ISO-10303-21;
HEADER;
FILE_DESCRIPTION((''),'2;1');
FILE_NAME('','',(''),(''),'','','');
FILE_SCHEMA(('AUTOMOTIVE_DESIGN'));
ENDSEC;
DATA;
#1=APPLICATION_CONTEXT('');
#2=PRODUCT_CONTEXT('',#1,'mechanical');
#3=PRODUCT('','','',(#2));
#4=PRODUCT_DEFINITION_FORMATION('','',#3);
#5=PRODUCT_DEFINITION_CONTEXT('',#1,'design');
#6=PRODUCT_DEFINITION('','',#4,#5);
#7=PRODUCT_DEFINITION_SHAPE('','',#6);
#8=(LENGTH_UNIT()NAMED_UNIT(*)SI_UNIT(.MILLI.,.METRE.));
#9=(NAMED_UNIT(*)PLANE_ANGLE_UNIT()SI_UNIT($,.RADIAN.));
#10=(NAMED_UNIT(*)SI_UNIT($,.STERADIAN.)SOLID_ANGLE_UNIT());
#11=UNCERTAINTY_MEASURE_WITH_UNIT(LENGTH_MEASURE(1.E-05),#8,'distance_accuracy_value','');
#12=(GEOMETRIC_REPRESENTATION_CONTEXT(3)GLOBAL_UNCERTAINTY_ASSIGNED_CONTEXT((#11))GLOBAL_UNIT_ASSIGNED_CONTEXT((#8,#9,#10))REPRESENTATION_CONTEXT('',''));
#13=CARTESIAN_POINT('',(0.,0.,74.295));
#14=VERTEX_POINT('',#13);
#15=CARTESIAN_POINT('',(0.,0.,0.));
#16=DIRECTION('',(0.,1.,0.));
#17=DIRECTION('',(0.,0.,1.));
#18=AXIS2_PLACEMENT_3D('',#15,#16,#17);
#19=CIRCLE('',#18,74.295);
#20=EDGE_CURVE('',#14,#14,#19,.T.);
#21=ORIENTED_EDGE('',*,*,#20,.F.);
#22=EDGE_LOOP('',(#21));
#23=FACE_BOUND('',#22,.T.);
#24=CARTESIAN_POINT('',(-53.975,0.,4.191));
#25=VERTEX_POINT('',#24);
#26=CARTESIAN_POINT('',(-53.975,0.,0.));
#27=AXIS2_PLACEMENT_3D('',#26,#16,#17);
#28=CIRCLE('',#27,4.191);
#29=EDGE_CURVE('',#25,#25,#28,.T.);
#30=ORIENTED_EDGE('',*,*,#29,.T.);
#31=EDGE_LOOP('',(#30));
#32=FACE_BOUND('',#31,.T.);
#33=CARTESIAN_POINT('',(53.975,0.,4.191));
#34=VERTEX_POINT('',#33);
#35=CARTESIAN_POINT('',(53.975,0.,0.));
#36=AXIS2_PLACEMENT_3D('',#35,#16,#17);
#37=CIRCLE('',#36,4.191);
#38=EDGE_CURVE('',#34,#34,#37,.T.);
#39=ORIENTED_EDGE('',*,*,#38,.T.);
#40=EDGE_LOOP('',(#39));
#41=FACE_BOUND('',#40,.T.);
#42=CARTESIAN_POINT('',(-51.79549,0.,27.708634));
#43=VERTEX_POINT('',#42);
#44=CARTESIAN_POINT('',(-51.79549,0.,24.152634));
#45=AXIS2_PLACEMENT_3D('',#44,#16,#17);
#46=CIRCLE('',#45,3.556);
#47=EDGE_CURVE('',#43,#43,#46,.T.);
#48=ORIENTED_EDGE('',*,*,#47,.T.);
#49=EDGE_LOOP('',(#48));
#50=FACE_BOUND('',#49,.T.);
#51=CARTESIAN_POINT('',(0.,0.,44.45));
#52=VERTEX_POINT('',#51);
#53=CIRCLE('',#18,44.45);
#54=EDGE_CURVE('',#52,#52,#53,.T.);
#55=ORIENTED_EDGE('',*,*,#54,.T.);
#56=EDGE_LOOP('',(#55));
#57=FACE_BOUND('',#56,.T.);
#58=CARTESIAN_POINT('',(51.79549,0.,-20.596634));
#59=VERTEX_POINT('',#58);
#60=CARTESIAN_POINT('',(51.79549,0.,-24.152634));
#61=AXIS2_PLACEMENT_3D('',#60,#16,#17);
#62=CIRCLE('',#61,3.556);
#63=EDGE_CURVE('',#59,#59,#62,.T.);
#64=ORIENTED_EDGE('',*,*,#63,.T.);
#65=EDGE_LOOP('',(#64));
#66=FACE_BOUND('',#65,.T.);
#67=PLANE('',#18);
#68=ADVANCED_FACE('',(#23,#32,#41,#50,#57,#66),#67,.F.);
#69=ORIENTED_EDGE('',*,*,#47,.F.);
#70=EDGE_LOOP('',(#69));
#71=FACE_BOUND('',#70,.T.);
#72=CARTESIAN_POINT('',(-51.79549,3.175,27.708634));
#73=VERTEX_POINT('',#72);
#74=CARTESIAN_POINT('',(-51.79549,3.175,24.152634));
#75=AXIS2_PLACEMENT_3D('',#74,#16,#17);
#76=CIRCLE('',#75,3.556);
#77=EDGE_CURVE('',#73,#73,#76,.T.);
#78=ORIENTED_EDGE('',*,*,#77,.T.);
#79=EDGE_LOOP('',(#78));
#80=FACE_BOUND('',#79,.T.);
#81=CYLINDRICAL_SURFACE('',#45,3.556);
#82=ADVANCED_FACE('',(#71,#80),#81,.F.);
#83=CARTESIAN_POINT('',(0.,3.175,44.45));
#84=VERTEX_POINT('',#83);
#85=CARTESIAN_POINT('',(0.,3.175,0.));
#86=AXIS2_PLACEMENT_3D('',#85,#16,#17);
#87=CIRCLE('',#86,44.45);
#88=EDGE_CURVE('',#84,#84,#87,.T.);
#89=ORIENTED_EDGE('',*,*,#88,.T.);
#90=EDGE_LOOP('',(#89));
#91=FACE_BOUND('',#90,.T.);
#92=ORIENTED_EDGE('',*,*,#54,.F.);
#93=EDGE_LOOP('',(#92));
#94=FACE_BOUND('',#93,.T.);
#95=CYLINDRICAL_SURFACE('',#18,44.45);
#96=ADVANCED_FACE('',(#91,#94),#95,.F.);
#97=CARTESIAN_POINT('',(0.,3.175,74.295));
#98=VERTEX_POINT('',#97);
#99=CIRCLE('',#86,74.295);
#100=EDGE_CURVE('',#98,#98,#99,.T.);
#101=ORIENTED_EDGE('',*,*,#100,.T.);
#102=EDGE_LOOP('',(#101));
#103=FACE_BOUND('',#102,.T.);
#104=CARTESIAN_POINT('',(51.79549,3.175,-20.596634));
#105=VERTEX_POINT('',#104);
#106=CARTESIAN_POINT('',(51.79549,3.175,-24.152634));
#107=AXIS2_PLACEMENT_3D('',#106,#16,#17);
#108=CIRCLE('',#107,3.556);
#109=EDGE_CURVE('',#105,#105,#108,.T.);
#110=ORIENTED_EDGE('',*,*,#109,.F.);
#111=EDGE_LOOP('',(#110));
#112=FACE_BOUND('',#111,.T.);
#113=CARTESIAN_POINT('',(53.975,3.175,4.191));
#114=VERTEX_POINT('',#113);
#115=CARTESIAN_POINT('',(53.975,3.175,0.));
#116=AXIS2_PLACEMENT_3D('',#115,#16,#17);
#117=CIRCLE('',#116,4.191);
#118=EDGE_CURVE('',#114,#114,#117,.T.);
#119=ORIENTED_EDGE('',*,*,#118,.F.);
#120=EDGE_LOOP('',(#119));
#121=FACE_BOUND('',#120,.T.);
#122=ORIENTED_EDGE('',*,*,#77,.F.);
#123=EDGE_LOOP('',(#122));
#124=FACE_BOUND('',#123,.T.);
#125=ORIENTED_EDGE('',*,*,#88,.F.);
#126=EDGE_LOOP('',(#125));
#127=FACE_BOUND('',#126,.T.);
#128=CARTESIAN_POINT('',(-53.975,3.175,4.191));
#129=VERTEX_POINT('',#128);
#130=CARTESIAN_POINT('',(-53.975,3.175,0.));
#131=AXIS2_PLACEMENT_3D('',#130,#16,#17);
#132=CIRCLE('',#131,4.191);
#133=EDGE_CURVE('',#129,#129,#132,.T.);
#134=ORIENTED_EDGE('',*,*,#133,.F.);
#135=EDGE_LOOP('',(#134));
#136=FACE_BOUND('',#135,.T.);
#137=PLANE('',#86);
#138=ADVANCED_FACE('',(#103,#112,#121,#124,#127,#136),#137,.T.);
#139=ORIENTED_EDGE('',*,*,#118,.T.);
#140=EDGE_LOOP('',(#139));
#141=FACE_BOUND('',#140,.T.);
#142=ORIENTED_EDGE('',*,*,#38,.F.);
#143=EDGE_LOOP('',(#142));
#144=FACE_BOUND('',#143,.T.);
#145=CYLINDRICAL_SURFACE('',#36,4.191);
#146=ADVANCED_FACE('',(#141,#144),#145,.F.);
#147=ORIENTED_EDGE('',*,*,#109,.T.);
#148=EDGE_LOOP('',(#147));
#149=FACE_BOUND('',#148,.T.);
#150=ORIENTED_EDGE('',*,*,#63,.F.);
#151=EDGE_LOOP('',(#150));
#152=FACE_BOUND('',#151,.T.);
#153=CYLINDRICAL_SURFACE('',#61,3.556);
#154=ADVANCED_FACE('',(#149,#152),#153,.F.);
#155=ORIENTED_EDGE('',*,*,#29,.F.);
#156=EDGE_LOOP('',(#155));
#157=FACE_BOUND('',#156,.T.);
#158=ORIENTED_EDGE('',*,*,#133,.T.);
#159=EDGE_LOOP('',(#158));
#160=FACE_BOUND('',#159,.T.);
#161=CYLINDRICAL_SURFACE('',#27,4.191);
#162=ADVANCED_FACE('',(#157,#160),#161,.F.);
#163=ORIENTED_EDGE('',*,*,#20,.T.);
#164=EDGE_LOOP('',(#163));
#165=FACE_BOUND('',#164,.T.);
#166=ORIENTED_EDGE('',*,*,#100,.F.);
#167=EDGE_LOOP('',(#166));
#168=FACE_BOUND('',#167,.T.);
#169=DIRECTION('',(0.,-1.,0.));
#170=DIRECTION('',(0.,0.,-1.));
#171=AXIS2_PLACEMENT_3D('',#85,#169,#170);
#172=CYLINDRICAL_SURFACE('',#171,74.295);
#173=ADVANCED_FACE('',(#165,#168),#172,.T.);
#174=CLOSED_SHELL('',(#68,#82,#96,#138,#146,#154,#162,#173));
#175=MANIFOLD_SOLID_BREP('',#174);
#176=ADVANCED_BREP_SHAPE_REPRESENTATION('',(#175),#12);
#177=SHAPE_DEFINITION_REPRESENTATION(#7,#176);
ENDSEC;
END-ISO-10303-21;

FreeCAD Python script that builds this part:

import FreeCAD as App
import Part
import Sketcher
Q = App.Units.Quantity

doc = App.newDocument("Part")
body = doc.addObject("PartDesign::Body", "Body")

# Sketch on XZ plane
sketch1 = body.newObject("Sketcher::SketchObject", "Sketch")
sketch1.AttachmentSupport = (doc.getObject("XZ_Plane"), [""])
sketch1.MapMode = "FlatFace"
sketch1.addGeometry(Part.Circle(App.Vector(0, 0, 0), App.Vector(0, 0, 1), 74.295), False)
sketch1.addConstraint([
    Sketcher.Constraint("Coincident", 0, 3, -1, 1),
    Sketcher.Constraint("Diameter", 0, Q("5.85 in")),
])
pad1 = body.newObject("PartDesign::Pad", "Pad")
pad1.Profile = sketch1
pad1.Length = Q("0.125 in")
pad1.Reversed = True

# Sketch on XZ plane
sketch2 = body.newObject("Sketcher::SketchObject", "Sketch001")
sketch2.AttachmentSupport = (doc.getObject("XZ_Plane"), [""])
sketch2.MapMode = "FlatFace"
sketch2.AttachmentOffset = App.Placement(App.Vector(0, 0, -0.125 * 25.4), App.Rotation())
sketch2.addGeometry([
    Part.Circle(App.Vector(-51.79549, 24.152634, 0), App.Vector(0, 0, 1), 3.556),
    Part.Circle(App.Vector(51.79549, -24.152634, 0), App.Vector(0, 0, 1), 3.556),
    Part.Circle(App.Vector(-53.975, 0, 0), App.Vector(0, 0, 1), 4.191),
    Part.Circle(App.Vector(53.975, 0, 0), App.Vector(0, 0, 1), 4.191),
], False)
sketch2.addConstraint([
    Sketcher.Constraint("Equal", 0, 1),
    Sketcher.Constraint("Equal", 2, 3),
    Sketcher.Constraint("Symmetric", 0, 3, 1, 3, -1, 1),
    Sketcher.Constraint("Symmetric", 2, 3, 3, 3, -1, 1),
    Sketcher.Constraint("PointOnObject", 2, 3, -1),
    Sketcher.Constraint("Diameter", 0, Q("0.28 in")),
    Sketcher.Constraint("Diameter", 2, Q("0.33 in")),
    Sketcher.Constraint("DistanceX", 2, 3, 3, 3, Q("4.25 in")),
    Sketcher.Constraint("DistanceX", 0, 3, -1, 1, Q("51.79549 mm")),
    Sketcher.Constraint("DistanceY", -1, 1, 0, 3, Q("24.152634 mm")),
])
pocket1 = body.newObject("PartDesign::Pocket", "Pocket")
pocket1.Profile = sketch2
pocket1.Length = Q("0.125 in")
pocket1.Reversed = True

# Sketch on XZ plane
sketch3 = body.newObject("Sketcher::SketchObject", "Sketch002")
sketch3.AttachmentSupport = (doc.getObject("XZ_Plane"), [""])
sketch3.MapMode = "FlatFace"
sketch3.AttachmentOffset = App.Placement(App.Vector(0, 0, -0.125 * 25.4), App.Rotation())
sketch3.addGeometry(Part.Circle(App.Vector(0, 0, 0), App.Vector(0, 0, 1), 44.45), False)
sketch3.addConstraint([
    Sketcher.Constraint("Coincident", 0, 3, -1, 1),
    Sketcher.Constraint("Diameter", 0, Q("3.5 in")),
])
pocket2 = body.newObject("PartDesign::Pocket", "Pocket001")
pocket2.Profile = sketch3
pocket2.Length = Q("0.125 in")
pocket2.Reversed = True

doc.recompute()
